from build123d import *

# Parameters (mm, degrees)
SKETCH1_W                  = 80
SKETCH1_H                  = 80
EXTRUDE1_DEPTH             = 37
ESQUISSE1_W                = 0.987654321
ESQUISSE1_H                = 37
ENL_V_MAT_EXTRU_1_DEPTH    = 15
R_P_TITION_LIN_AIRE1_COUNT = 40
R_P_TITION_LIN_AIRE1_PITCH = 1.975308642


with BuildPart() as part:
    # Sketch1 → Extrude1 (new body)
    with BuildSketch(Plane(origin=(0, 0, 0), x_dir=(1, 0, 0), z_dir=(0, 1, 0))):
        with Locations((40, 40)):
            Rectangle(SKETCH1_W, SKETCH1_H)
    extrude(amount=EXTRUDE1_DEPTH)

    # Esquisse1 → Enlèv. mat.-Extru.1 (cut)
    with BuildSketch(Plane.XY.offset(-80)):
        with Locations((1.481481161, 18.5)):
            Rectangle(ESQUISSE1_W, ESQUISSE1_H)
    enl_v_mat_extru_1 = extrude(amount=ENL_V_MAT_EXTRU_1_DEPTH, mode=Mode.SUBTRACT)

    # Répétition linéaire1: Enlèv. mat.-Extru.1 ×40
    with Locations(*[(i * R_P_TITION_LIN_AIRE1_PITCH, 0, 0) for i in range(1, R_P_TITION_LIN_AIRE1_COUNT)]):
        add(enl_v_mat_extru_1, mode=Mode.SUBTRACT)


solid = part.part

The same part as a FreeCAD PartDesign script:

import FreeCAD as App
import Part
import Sketcher
from FreeCAD import Vector

doc = App.newDocument("Part")
body = doc.addObject("PartDesign::Body", "Body")

# Sketch on XZ plane
sketch1 = doc.addObject("Sketcher::SketchObject", "Sketch")
body.addObject(sketch1)
sketch1.AttachmentSupport = (doc.XZ_Plane, [""])
sketch1.MapMode = "FlatFace"
sketch1.addGeometry([
    Part.LineSegment(Vector(0, -80, 0), Vector(0, 0, 0)),
    Part.LineSegment(Vector(0, 0, 0), Vector(80, 0, 0)),
    Part.LineSegment(Vector(80, 0, 0), Vector(80, -80, 0)),
    Part.LineSegment(Vector(80, -80, 0), Vector(0, -80, 0)),
], False)
sketch1.addConstraint([
    Sketcher.Constraint("Coincident", 0, 2, 1, 1),
    Sketcher.Constraint("Coincident", 1, 2, 2, 1),
    Sketcher.Constraint("Coincident", 2, 2, 3, 1),
    Sketcher.Constraint("Coincident", 3, 2, 0, 1),
    Sketcher.Constraint("Vertical", 0),
    Sketcher.Constraint("Horizontal", 1),
    Sketcher.Constraint("Vertical", 2),
    Sketcher.Constraint("Horizontal", 3),
    Sketcher.Constraint("Coincident", 0, 2, -1, 1),
    Sketcher.Constraint("Equal", 3, 0),
    Sketcher.Constraint("DistanceX", 1, 1, 1, 2, 80.0),
])
pad1 = doc.addObject("PartDesign::Pad", "Pad")
body.addObject(pad1)
pad1.Profile = sketch1
pad1.Length = 37
pad1.Reversed = True

# Sketch on XY plane
sketch2 = doc.addObject("Sketcher::SketchObject", "Sketch001")
body.addObject(sketch2)
sketch2.AttachmentSupport = (doc.XY_Plane, [""])
sketch2.MapMode = "FlatFace"
sketch2.AttachmentOffset = App.Placement(Vector(0, 0, -80), App.Rotation())
sketch2.addGeometry([
    Part.LineSegment(Vector(1, 37, 0), Vector(1, 0, 0)),
    Part.LineSegment(Vector(1, 0, 0), Vector(2, 0, 0)),
    Part.LineSegment(Vector(2, 0, 0), Vector(2, 37, 0)),
    Part.LineSegment(Vector(2, 37, 0), Vector(1, 37, 0)),
], False)
sketch2.addConstraint([
    Sketcher.Constraint("Coincident", 0, 2, 1, 1),
    Sketcher.Constraint("Coincident", 1, 2, 2, 1),
    Sketcher.Constraint("Coincident", 2, 2, 3, 1),
    Sketcher.Constraint("Coincident", 3, 2, 0, 1),
    Sketcher.Constraint("Vertical", 0),
    Sketcher.Constraint("Horizontal", 1),
    Sketcher.Constraint("Vertical", 2),
    Sketcher.Constraint("Horizontal", 3),
    Sketcher.Constraint("PointOnObject", 0, 2, -1),
    Sketcher.Constraint("DistanceY", 0, 2, 0, 1, 37.0),
    Sketcher.Constraint("DistanceX", 1, 1, 1, 2, 0.987654),
    Sketcher.Constraint("DistanceX", -1, 1, 1, 2, 1.975308),
])
pocket1 = doc.addObject("PartDesign::Pocket", "Pocket")
body.addObject(pocket1)
pocket1.Profile = sketch2
pocket1.Length = 15
pocket1.Reversed = True
doc.recompute()

linearpattern = doc.addObject("PartDesign::LinearPattern", "LinearPattern")
body.addObject(linearpattern)
linearpattern.Originals = [pocket1]
linearpattern.Direction = (doc.X_Axis, [""])
linearpattern.Mode = "offset"
linearpattern.Offset = 1.975309
linearpattern.Occurrences = 40
body.Tip = linearpattern

doc.recompute()
